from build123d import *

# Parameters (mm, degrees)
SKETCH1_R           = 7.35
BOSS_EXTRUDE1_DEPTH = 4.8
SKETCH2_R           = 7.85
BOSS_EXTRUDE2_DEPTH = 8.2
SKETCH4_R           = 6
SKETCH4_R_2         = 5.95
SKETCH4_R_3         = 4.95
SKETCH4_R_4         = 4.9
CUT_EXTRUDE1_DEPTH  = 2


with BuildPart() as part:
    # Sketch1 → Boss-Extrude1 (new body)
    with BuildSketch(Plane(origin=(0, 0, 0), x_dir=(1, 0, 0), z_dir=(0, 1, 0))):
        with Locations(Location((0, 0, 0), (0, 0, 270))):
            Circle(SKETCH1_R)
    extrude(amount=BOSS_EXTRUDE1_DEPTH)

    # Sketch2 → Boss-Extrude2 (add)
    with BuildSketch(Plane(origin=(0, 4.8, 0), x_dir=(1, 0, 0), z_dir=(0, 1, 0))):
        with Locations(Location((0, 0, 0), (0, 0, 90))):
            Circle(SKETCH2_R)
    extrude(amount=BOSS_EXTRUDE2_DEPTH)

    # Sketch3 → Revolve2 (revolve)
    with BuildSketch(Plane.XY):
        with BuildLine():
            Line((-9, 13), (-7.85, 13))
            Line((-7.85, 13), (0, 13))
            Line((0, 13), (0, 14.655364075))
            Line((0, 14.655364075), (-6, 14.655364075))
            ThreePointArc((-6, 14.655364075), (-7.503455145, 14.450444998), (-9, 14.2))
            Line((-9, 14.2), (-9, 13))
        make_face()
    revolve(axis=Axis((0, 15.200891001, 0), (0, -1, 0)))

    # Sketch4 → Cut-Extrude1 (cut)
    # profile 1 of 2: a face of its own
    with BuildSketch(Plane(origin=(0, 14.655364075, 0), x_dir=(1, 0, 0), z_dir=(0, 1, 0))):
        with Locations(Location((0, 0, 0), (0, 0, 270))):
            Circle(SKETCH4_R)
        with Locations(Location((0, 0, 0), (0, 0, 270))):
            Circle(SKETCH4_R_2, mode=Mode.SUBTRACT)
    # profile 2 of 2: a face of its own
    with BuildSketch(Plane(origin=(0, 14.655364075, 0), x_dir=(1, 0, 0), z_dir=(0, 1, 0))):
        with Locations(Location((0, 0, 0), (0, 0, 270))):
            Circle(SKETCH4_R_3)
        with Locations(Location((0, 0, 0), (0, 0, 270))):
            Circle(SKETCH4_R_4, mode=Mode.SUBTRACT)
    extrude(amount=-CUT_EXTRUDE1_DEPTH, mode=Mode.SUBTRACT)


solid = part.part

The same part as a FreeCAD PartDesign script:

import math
import FreeCAD as App
import Part
import Sketcher
from FreeCAD import Vector
Q = App.Units.Quantity

doc = App.newDocument("Part")
body = doc.addObject("PartDesign::Body", "Body")

# Sketch on XZ plane
sketch1 = body.newObject("Sketcher::SketchObject", "Sketch")
sketch1.AttachmentSupport = (doc.getObject("XZ_Plane"), [""])
sketch1.MapMode = "FlatFace"
sketch1.addGeometry(Part.Circle(Vector(0, 0, 0), Vector(0, 0, 1), 7), False)
sketch1.addConstraint([
    Sketcher.Constraint("Coincident", 0, 3, -1, 1),
    Sketcher.Constraint("Diameter", 0, Q("14.7 mm")),
])
pad1 = body.newObject("PartDesign::Pad", "Pad")
pad1.Profile = sketch1
pad1.Length = 4.8
pad1.Reversed = True

# Sketch on XZ plane
sketch2 = body.newObject("Sketcher::SketchObject", "Sketch001")
sketch2.AttachmentSupport = (doc.getObject("XZ_Plane"), [""])
sketch2.MapMode = "FlatFace"
sketch2.AttachmentOffset = App.Placement(Vector(0, 0, -4.8), App.Rotation())
sketch2.addGeometry(Part.Circle(Vector(0, 0, 0), Vector(0, 0, 1), 8), False)
sketch2.addConstraint([
    Sketcher.Constraint("Coincident", 0, 3, -1, 1),
    Sketcher.Constraint("Diameter", 0, Q("15.7 mm")),
])
pad2 = body.newObject("PartDesign::Pad", "Pad001")
pad2.Profile = sketch2
pad2.Length = 8.2
pad2.Reversed = True

# Sketch on XY plane
sketch3 = body.newObject("Sketcher::SketchObject", "Sketch002")
sketch3.AttachmentSupport = (doc.getObject("XY_Plane"), [""])
sketch3.MapMode = "FlatFace"
sketch3.addGeometry([
    Part.LineSegment(Vector(-9, 13, 0), Vector(0, 13, 0)),  # 0
    Part.LineSegment(Vector(0, 13, 0), Vector(0, 14.7, 0)),  # 1
    Part.LineSegment(Vector(0, 14.7, 0), Vector(-6, 14.7, 0)),  # 2
    Part.ArcOfCircle(Part.Circle(Vector(0, -35, 0), Vector(0, 0, 1), 50), math.radians(96.89), math.radians(100.37)),  # 3
    Part.LineSegment(Vector(-9, 14.2, 0), Vector(-9, 13, 0)),  # 4
], False)
sketch3.addConstraint([
    Sketcher.Constraint("Coincident", 0, 2, 1, 1),
    Sketcher.Constraint("Coincident", 1, 2, 2, 1),
    Sketcher.Constraint("Coincident", 2, 2, 3, 1),
    Sketcher.Constraint("Coincident", 3, 2, 4, 1),
    Sketcher.Constraint("Coincident", 4, 2, 0, 1),
    Sketcher.Constraint("Horizontal", 0),
    Sketcher.Constraint("Vertical", 1),
    Sketcher.Constraint("Horizontal", 2),
    Sketcher.Constraint("Vertical", 4),
    Sketcher.Constraint("PointOnObject", 3, 3, -2),
    Sketcher.Constraint("PointOnObject", 0, 2, -2),
    Sketcher.Constraint("Radius", 3, Q("50 mm")),
    Sketcher.Constraint("DistanceX", 0, 1, 0, 2, Q("9 mm")),
    Sketcher.Constraint("DistanceX", 2, 2, 2, 1, Q("6 mm")),
    Sketcher.Constraint("DistanceY", 4, 2, 4, 1, Q("1.2 mm")),
    Sketcher.Constraint("DistanceY", -1, 1, 0, 2, Q("13 mm")),
])
revolution = body.newObject("PartDesign::Revolution", "Revolution")
revolution.Profile = sketch3
revolution.ReferenceAxis = (sketch3, ["V_Axis"])
revolution.Angle = 360

# Sketch on XZ plane
sketch4 = body.newObject("Sketcher::SketchObject", "Sketch003")
sketch4.AttachmentSupport = (doc.getObject("XZ_Plane"), [""])
sketch4.MapMode = "FlatFace"
sketch4.AttachmentOffset = App.Placement(Vector(0, 0, -14.655364), App.Rotation())
sketch4.addGeometry([
    Part.Circle(Vector(0, 0, 0), Vector(0, 0, 1), 6),
    Part.Circle(Vector(0, 0, 0), Vector(0, 0, 1), 6),
    Part.Circle(Vector(0, 0, 0), Vector(0, 0, 1), 5),
    Part.Circle(Vector(0, 0, 0), Vector(0, 0, 1), 4.9),
], False)
sketch4.addConstraint([
    Sketcher.Constraint("Coincident", 0, 3, -1, 1),
    Sketcher.Constraint("Coincident", 1, 3, -1, 1),
    Sketcher.Constraint("Coincident", 2, 3, -1, 1),
    Sketcher.Constraint("Coincident", 3, 3, -1, 1),
    Sketcher.Constraint("Diameter", 0, Q("12 mm")),
    Sketcher.Constraint("Diameter", 1, Q("11.9 mm")),
    Sketcher.Constraint("Diameter", 2, Q("9.9 mm")),
    Sketcher.Constraint("Diameter", 3, Q("9.8 mm")),
])
pocket1 = body.newObject("PartDesign::Pocket", "Pocket")
pocket1.Profile = sketch4
pocket1.Length = 2
pocket1.Reversed = True

doc.recompute()
